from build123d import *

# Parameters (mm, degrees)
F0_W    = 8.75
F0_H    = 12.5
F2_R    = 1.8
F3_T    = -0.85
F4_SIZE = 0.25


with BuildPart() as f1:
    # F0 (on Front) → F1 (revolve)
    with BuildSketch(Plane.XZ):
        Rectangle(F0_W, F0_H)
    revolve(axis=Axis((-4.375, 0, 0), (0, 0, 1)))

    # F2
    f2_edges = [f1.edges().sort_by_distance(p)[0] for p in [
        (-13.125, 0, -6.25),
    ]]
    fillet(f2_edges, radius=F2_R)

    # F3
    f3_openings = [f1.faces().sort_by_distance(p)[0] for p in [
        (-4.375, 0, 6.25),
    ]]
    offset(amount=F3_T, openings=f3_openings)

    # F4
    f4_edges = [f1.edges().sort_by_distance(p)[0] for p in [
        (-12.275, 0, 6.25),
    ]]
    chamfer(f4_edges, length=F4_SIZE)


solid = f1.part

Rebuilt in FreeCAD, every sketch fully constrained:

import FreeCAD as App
import Part
import Sketcher


def edges_at(feature, points):
    """Names of the edges that pass closest to the given points."""
    edges = feature.Shape.Edges
    near = lambda p: min(range(len(edges)), key=lambda i: edges[i].distToShape(Part.Vertex(*p))[0])
    return sorted({f"Edge{near(p) + 1}" for p in points})


def faces_at(feature, points):
    """Names of the faces that lie closest to the given points."""
    faces = feature.Shape.Faces
    near = lambda p: min(range(len(faces)), key=lambda i: faces[i].distToShape(Part.Vertex(*p))[0])
    return sorted({f"Face{near(p) + 1}" for p in points})


def add_polygon(sketch, points):
    """Adds a closed chain of lines whose ends are joined by coincident constraints."""
    first, n = sketch.GeometryCount, len(points)
    for a, b in zip(points, points[1:] + points[:1]):
        sketch.addGeometry(Part.LineSegment(App.Vector(*a, 0), App.Vector(*b, 0)), False)
    for i in range(n):
        sketch.addConstraint(Sketcher.Constraint("Coincident", first + i, 2, first + (i + 1) % n, 1))

doc = App.newDocument("Part")
body = doc.addObject("PartDesign::Body", "Body")

# Sketch on XZ plane
sketch1 = doc.addObject("Sketcher::SketchObject", "Sketch")
body.addObject(sketch1)
sketch1.AttachmentSupport = (doc.XZ_Plane, [""])
sketch1.MapMode = "FlatFace"
add_polygon(sketch1, [(-4.375, 6.25), (-4.375, -6.25), (4.375, -6.25), (4.375, 6.25)])  # lines 0-3
sketch1.addGeometry(Part.LineSegment(App.Vector(-4.375, -6.25, 0), App.Vector(-4.375, 6.25, 0)), True)  # axis
sketch1.addConstraint([
    Sketcher.Constraint("Vertical", 0),
    Sketcher.Constraint("Horizontal", 1),
    Sketcher.Constraint("Vertical", 2),
    Sketcher.Constraint("Horizontal", 3),
    Sketcher.Constraint("Vertical", 4),
    Sketcher.Constraint("Coincident", 4, 1, 0, 2),
    Sketcher.Constraint("Symmetric", 0, 2, 2, 2, -1, 1),
    Sketcher.Constraint("Horizontal", 2, 2, 4, 2),
    Sketcher.Constraint("DistanceY", 0, 2, 0, 1, 12.5),
    Sketcher.Constraint("DistanceX", 1, 1, 1, 2, 8.75),
])
revolution = doc.addObject("PartDesign::Revolution", "Revolution")
body.addObject(revolution)
revolution.Profile = sketch1
revolution.ReferenceAxis = (sketch1, ["Axis0"])
revolution.Angle = 360
doc.recompute()

fillet = doc.addObject("PartDesign::Fillet", "Fillet")
body.addObject(fillet)
fillet.Base = (revolution, edges_at(revolution, [(-13.125, 0, -6.25)]))
fillet.Radius = 1.8
doc.recompute()

thickness = doc.addObject("PartDesign::Thickness", "Thickness")
body.addObject(thickness)
thickness.Base = (fillet, faces_at(fillet, [(-4.375, 0, 6.25)]))
thickness.Value = 0.85
thickness.Reversed = True
thickness.Join = "Arc"
doc.recompute()

chamfer = doc.addObject("PartDesign::Chamfer", "Chamfer")
body.addObject(chamfer)
chamfer.Base = (thickness, edges_at(thickness, [(-12.275, 0, 6.25)]))
chamfer.Size = 0.25

doc.recompute()
